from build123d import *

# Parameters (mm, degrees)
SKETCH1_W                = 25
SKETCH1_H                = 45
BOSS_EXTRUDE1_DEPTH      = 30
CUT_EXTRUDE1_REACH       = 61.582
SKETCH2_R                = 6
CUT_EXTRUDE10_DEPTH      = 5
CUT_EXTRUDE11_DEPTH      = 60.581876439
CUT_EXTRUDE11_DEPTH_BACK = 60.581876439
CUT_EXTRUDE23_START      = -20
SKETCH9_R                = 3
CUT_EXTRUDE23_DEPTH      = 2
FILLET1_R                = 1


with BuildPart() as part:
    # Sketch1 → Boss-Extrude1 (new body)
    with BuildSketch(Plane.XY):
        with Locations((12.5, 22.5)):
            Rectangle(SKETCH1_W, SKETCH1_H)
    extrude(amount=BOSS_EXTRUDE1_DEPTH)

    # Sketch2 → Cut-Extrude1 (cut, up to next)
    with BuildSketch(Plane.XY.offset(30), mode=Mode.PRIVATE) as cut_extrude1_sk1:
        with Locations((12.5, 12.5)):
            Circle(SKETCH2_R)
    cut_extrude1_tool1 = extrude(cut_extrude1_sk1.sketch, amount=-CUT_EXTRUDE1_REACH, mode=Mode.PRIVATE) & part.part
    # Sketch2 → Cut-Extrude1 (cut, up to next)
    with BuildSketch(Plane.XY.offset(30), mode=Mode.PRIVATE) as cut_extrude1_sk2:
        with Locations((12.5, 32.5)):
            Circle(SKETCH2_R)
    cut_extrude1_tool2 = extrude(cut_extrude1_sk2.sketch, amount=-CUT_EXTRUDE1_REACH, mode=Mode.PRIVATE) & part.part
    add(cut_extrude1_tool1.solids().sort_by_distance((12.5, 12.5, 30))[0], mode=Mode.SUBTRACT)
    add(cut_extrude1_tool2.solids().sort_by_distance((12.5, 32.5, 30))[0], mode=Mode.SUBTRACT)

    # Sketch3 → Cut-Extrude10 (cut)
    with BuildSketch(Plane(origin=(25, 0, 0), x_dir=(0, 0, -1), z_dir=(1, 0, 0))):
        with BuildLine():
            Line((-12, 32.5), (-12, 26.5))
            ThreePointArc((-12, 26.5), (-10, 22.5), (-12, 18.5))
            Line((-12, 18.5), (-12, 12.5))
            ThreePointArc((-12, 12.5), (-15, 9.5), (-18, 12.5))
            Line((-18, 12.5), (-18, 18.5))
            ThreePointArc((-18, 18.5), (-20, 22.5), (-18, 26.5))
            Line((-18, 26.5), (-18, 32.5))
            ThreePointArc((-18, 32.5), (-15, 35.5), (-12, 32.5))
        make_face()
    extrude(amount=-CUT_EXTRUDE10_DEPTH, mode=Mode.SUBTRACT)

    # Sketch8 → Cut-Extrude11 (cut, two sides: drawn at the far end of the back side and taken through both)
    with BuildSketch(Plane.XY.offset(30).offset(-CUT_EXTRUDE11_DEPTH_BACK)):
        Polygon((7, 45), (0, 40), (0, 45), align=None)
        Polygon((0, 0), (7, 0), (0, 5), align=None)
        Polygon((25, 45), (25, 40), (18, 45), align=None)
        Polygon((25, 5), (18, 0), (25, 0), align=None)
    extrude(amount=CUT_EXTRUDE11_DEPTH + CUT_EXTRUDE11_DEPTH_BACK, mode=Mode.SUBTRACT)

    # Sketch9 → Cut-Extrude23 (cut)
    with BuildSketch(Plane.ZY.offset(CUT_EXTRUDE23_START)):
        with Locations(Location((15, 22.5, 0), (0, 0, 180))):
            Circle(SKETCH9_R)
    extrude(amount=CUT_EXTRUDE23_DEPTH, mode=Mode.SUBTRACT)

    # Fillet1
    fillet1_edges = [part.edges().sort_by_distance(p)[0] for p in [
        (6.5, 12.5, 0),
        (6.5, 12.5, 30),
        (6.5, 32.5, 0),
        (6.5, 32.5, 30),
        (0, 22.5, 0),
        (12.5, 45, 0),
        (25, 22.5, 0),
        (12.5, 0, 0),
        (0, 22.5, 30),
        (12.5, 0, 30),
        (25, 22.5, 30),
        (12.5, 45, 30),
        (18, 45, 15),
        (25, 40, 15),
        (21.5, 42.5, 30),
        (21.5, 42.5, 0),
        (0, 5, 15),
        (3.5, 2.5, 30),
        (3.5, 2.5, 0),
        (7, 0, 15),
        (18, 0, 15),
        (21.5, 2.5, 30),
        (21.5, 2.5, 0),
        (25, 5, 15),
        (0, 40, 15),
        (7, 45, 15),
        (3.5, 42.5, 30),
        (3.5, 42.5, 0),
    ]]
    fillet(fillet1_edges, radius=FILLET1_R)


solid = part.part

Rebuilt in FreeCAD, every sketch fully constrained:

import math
import FreeCAD as App
import Part
import Sketcher
from FreeCAD import Vector
Q = App.Units.Quantity


def edges_at(feature, points):
    """Names of the edges that pass closest to the given points."""
    edges = feature.Shape.Edges
    near = lambda p: min(range(len(edges)), key=lambda i: edges[i].distToShape(Part.Vertex(*p))[0])
    return sorted({f"Edge{near(p) + 1}" for p in points})

doc = App.newDocument("Part")
params = doc.addObject("Spreadsheet::Sheet", "Params")
for row, (alias, value) in enumerate([
    ("sketch1_width", "25 mm"),
    ("sketch1_height", "45 mm"),
    ("pad1_length", "30 mm"),
    ("sketch2_diameter", "12 mm"),
    ("sketch3_diameter", "12 mm"),
    ("sketch4_radius", "3 mm"),
    ("sketch4_radius2", "5 mm"),
    ("sketch4_width", "6 mm"),
    ("pocket3_length", "5 mm"),
    ("sketch5_width", "7 mm"),
    ("sketch5_height", "5 mm"),
    ("sketch6_diameter", "6 mm"),
    ("pocket5_length", "2 mm"),
    ("fillet_radius", "1 mm"),
], start=1):
    params.set(f"A{row}", alias)
    params.set(f"B{row}", "=" + value)
    params.setAlias(f"B{row}", alias)

body = doc.addObject("PartDesign::Body", "Body")

# Sketch on XY plane
sketch1 = body.newObject("Sketcher::SketchObject", "Sketch")
sketch1.AttachmentSupport = (doc.getObject("XY_Plane"), [""])
sketch1.MapMode = "FlatFace"
sketch1.addGeometry([
    Part.LineSegment(Vector(0, 45, 0), Vector(0, 0, 0)),
    Part.LineSegment(Vector(0, 0, 0), Vector(25, 0, 0)),
    Part.LineSegment(Vector(25, 0, 0), Vector(25, 45, 0)),
    Part.LineSegment(Vector(25, 45, 0), Vector(0, 45, 0)),
], False)
sketch1.addConstraint([
    Sketcher.Constraint("Coincident", 0, 2, 1, 1),
    Sketcher.Constraint("Coincident", 1, 2, 2, 1),
    Sketcher.Constraint("Coincident", 2, 2, 3, 1),
    Sketcher.Constraint("Coincident", 3, 2, 0, 1),
    Sketcher.Constraint("Vertical", 0),
    Sketcher.Constraint("Horizontal", 1),
    Sketcher.Constraint("Vertical", 2),
    Sketcher.Constraint("Horizontal", 3),
    Sketcher.Constraint("Coincident", 0, 2, -1, 1),
    Sketcher.Constraint("DistanceX", 1, 1, 1, 2, Q("25 mm")),
    Sketcher.Constraint("DistanceY", 0, 2, 0, 1, Q("45 mm")),
])
sketch1.setExpression("Constraints[9]", "Params.sketch1_width")
sketch1.setExpression("Constraints[10]", "Params.sketch1_height")
pad1 = body.newObject("PartDesign::Pad", "Pad")
pad1.Profile = sketch1
pad1.setExpression("Length", "Params.pad1_length")

# Sketch on XY plane
sketch2 = body.newObject("Sketcher::SketchObject", "Sketch001")
sketch2.AttachmentSupport = (doc.getObject("XY_Plane"), [""])
sketch2.MapMode = "FlatFace"
sketch2.AttachmentOffset = App.Placement(Vector(0, 0, 30), App.Rotation())
sketch2.addGeometry(Part.Circle(Vector(12, 12, 0), Vector(0, 0, 1), 6), False)
sketch2.addConstraint([
    Sketcher.Constraint("Diameter", 0, Q("12 mm")),
    Sketcher.Constraint("DistanceX", -1, 1, 0, 3, Q("12.5 mm")),
    Sketcher.Constraint("DistanceY", -1, 1, 0, 3, Q("12.5 mm")),
])
sketch2.setExpression("Constraints[0]", "Params.sketch2_diameter")
pocket1 = body.newObject("PartDesign::Pocket", "Pocket")
pocket1.Profile = sketch2
pocket1.Type = "UpToFirst"

# Sketch on XY plane
sketch3 = body.newObject("Sketcher::SketchObject", "Sketch002")
sketch3.AttachmentSupport = (doc.getObject("XY_Plane"), [""])
sketch3.MapMode = "FlatFace"
sketch3.AttachmentOffset = App.Placement(Vector(0, 0, 30), App.Rotation())
sketch3.addGeometry(Part.Circle(Vector(12, 32, 0), Vector(0, 0, 1), 6), False)
sketch3.addConstraint([
    Sketcher.Constraint("Diameter", 0, Q("12 mm")),
    Sketcher.Constraint("DistanceX", -1, 1, 0, 3, Q("12.5 mm")),
    Sketcher.Constraint("DistanceY", -1, 1, 0, 3, Q("32.5 mm")),
])
sketch3.setExpression("Constraints[0]", "Params.sketch3_diameter")
pocket2 = body.newObject("PartDesign::Pocket", "Pocket001")
pocket2.Profile = sketch3
pocket2.Type = "UpToFirst"

# Sketch on YZ plane
sketch4 = body.newObject("Sketcher::SketchObject", "Sketch003")
sketch4.AttachmentSupport = (doc.getObject("YZ_Plane"), [""])
sketch4.MapMode = "FlatFace"
sketch4.AttachmentOffset = App.Placement(Vector(0, 0, 25), App.Rotation())
sketch4.addGeometry([
    Part.LineSegment(Vector(26.5, 12, 0), Vector(32.5, 12, 0)),  # 0
    Part.ArcOfCircle(Part.Circle(Vector(32.5, 15, 0), Vector(0, 0, 1), 3), math.radians(-90), math.radians(90)),  # 1
    Part.LineSegment(Vector(32.5, 18, 0), Vector(26.5, 18, 0)),  # 2
    Part.ArcOfCircle(Part.Circle(Vector(22.5, 15, 0), Vector(0, 0, 1), 5), math.radians(37), math.radians(143)),  # 3
    Part.LineSegment(Vector(18.5, 18, 0), Vector(12.5, 18, 0)),  # 4
    Part.ArcOfCircle(Part.Circle(Vector(12.5, 15, 0), Vector(0, 0, 1), 3), math.radians(90), math.radians(270)),  # 5
    Part.LineSegment(Vector(12.5, 12, 0), Vector(18.5, 12, 0)),  # 6
    Part.ArcOfCircle(Part.Circle(Vector(22.5, 15, 0), Vector(0, 0, 1), 5), math.radians(-143), math.radians(-37)),  # 7
], False)
sketch4.addConstraint([
    Sketcher.Constraint("Tangent", 0, 2, 1, 1),
    Sketcher.Constraint("Tangent", 1, 2, 2, 1),
    Sketcher.Constraint("Coincident", 2, 2, 3, 1),
    Sketcher.Constraint("Coincident", 3, 2, 4, 1),
    Sketcher.Constraint("Tangent", 4, 2, 5, 1),
    Sketcher.Constraint("Tangent", 5, 2, 6, 1),
    Sketcher.Constraint("Coincident", 6, 2, 7, 1),
    Sketcher.Constraint("Coincident", 7, 2, 0, 1),
    Sketcher.Constraint("Horizontal", 0),
    Sketcher.Constraint("Horizontal", 2),
    Sketcher.Constraint("Horizontal", 4),
    Sketcher.Constraint("Horizontal", 6),
    Sketcher.Constraint("Coincident", 7, 3, 3, 3),
    Sketcher.Constraint("Equal", 1, 5),
    Sketcher.Constraint("Equal", 3, 7),
    Sketcher.Constraint("Horizontal", 1, 3, 3, 3),
    Sketcher.Constraint("Horizontal", 3, 3, 5, 3),
    Sketcher.Constraint("Equal", 2, 4),
    Sketcher.Constraint("Radius", 1, Q("3 mm")),
    Sketcher.Constraint("Radius", 3, Q("5 mm")),
    Sketcher.Constraint("DistanceX", 0, 1, 0, 2, Q("6 mm")),
    Sketcher.Constraint("DistanceY", -1, 1, 1, 3, Q("15 mm")),
    Sketcher.Constraint("DistanceX", -1, 1, 1, 3, Q("32.5 mm")),
])
sketch4.setExpression("Constraints[18]", "Params.sketch4_radius")
sketch4.setExpression("Constraints[19]", "Params.sketch4_radius2")
sketch4.setExpression("Constraints[20]", "Params.sketch4_width")
pocket3 = body.newObject("PartDesign::Pocket", "Pocket002")
pocket3.Profile = sketch4
pocket3.setExpression("Length", "Params.pocket3_length")

# Sketch on XY plane
sketch5 = body.newObject("Sketcher::SketchObject", "Sketch004")
sketch5.AttachmentSupport = (doc.getObject("XY_Plane"), [""])
sketch5.MapMode = "FlatFace"
sketch5.AttachmentOffset = App.Placement(Vector(0, 0, 30), App.Rotation())
sketch5.addGeometry([
    Part.LineSegment(Vector(0, 40, 0), Vector(7, 45, 0)),  # 0
    Part.LineSegment(Vector(7, 45, 0), Vector(0, 45, 0)),  # 1
    Part.LineSegment(Vector(0, 45, 0), Vector(0, 40, 0)),  # 2
    Part.LineSegment(Vector(0, 0, 0), Vector(7, 0, 0)),  # 3
    Part.LineSegment(Vector(7, 0, 0), Vector(0, 5, 0)),  # 4
    Part.LineSegment(Vector(0, 5, 0), Vector(0, 0, 0)),  # 5
    Part.LineSegment(Vector(25, 40, 0), Vector(25, 45, 0)),  # 6
    Part.LineSegment(Vector(25, 45, 0), Vector(18, 45, 0)),  # 7
    Part.LineSegment(Vector(18, 45, 0), Vector(25, 40, 0)),  # 8
    Part.LineSegment(Vector(25, 5, 0), Vector(18, 0, 0)),  # 9
    Part.LineSegment(Vector(18, 0, 0), Vector(25, 0, 0)),  # 10
    Part.LineSegment(Vector(25, 0, 0), Vector(25, 5, 0)),  # 11
], False)
sketch5.addConstraint([
    Sketcher.Constraint("Coincident", 0, 2, 1, 1),
    Sketcher.Constraint("Coincident", 1, 2, 2, 1),
    Sketcher.Constraint("Coincident", 2, 2, 0, 1),
    Sketcher.Constraint("Coincident", 3, 2, 4, 1),
    Sketcher.Constraint("Coincident", 4, 2, 5, 1),
    Sketcher.Constraint("Coincident", 5, 2, 3, 1),
    Sketcher.Constraint("Coincident", 6, 2, 7, 1),
    Sketcher.Constraint("Coincident", 7, 2, 8, 1),
    Sketcher.Constraint("Coincident", 8, 2, 6, 1),
    Sketcher.Constraint("Coincident", 9, 2, 10, 1),
    Sketcher.Constraint("Coincident", 10, 2, 11, 1),
    Sketcher.Constraint("Coincident", 11, 2, 9, 1),
    Sketcher.Constraint("Horizontal", 1),
    Sketcher.Constraint("Vertical", 2),
    Sketcher.Constraint("Horizontal", 3),
    Sketcher.Constraint("Vertical", 5),
    Sketcher.Constraint("Vertical", 6),
    Sketcher.Constraint("Horizontal", 7),
    Sketcher.Constraint("Horizontal", 10),
    Sketcher.Constraint("Vertical", 11),
    Sketcher.Constraint("Coincident", 5, 2, -1, 1),
    Sketcher.Constraint("PointOnObject", 1, 2, -2),
    Sketcher.Constraint("PointOnObject", 9, 2, -1),
    Sketcher.Constraint("Parallel", 4, 8),
    Sketcher.Constraint("Parallel", 0, 9),
    Sketcher.Constraint("Horizontal", 1, 2, 6, 2),
    Sketcher.Constraint("Horizontal", 2, 2, 8, 2),
    Sketcher.Constraint("Horizontal", 4, 2, 11, 2),
    Sketcher.Constraint("Vertical", 0, 2, 3, 2),
    Sketcher.Constraint("Vertical", 7, 2, 9, 2),
    Sketcher.Constraint("Vertical", 8, 2, 10, 2),
    Sketcher.Constraint("DistanceX", 1, 2, 1, 1, Q("7 mm")),
    Sketcher.Constraint("DistanceY", 2, 2, 2, 1, Q("5 mm")),
    Sketcher.Constraint("DistanceY", -1, 1, 0, 2, Q("45 mm")),
    Sketcher.Constraint("DistanceX", -1, 1, 6, 2, Q("25 mm")),
])
sketch5.setExpression("Constraints[31]", "Params.sketch5_width")
sketch5.setExpression("Constraints[32]", "Params.sketch5_height")
pocket4 = body.newObject("PartDesign::Pocket", "Pocket003")
pocket4.Profile = sketch5
pocket4.Type = "ThroughAll"
pocket4.Midplane = True

# Sketch on YZ plane
sketch6 = body.newObject("Sketcher::SketchObject", "Sketch005")
sketch6.AttachmentSupport = (doc.getObject("YZ_Plane"), [""])
sketch6.MapMode = "FlatFace"
sketch6.AttachmentOffset = App.Placement(Vector(0, 0, 20), App.Rotation())
sketch6.addGeometry(Part.Circle(Vector(22.5, 15, 0), Vector(0, 0, 1), 3), False)
sketch6.addConstraint([
    Sketcher.Constraint("Diameter", 0, Q("6 mm")),
    Sketcher.Constraint("DistanceY", -1, 1, 0, 3, Q("15 mm")),
    Sketcher.Constraint("DistanceX", -1, 1, 0, 3, Q("22.5 mm")),
])
sketch6.setExpression("Constraints[0]", "Params.sketch6_diameter")
pocket5 = body.newObject("PartDesign::Pocket", "Pocket004")
pocket5.Profile = sketch6
pocket5.setExpression("Length", "Params.pocket5_length")
doc.recompute()

fillet = body.newObject("PartDesign::Fillet", "Fillet")
fillet.Base = (pocket5, edges_at(pocket5, [
    (6.5, 12.5, 0),
    (6.5, 12.5, 30),
    (6.5, 32.5, 0),
    (6.5, 32.5, 30),
    (0, 22.5, 0),
    (12.5, 45, 0),
    (25, 22.5, 0),
    (12.5, 0, 0),
    (0, 22.5, 30),
    (12.5, 0, 30),
    (25, 22.5, 30),
    (12.5, 45, 30),
    (18, 45, 15),
    (25, 40, 15),
    (21.5, 42.5, 30),
    (21.5, 42.5, 0),
    (0, 5, 15),
    (3.5, 2.5, 30),
    (3.5, 2.5, 0),
    (7, 0, 15),
    (18, 0, 15),
    (21.5, 2.5, 30),
    (21.5, 2.5, 0),
    (25, 5, 15),
    (0, 40, 15),
    (7, 45, 15),
    (3.5, 42.5, 30),
    (3.5, 42.5, 0),
]))
fillet.setExpression("Radius", "Params.fillet_radius")

doc.recompute()
